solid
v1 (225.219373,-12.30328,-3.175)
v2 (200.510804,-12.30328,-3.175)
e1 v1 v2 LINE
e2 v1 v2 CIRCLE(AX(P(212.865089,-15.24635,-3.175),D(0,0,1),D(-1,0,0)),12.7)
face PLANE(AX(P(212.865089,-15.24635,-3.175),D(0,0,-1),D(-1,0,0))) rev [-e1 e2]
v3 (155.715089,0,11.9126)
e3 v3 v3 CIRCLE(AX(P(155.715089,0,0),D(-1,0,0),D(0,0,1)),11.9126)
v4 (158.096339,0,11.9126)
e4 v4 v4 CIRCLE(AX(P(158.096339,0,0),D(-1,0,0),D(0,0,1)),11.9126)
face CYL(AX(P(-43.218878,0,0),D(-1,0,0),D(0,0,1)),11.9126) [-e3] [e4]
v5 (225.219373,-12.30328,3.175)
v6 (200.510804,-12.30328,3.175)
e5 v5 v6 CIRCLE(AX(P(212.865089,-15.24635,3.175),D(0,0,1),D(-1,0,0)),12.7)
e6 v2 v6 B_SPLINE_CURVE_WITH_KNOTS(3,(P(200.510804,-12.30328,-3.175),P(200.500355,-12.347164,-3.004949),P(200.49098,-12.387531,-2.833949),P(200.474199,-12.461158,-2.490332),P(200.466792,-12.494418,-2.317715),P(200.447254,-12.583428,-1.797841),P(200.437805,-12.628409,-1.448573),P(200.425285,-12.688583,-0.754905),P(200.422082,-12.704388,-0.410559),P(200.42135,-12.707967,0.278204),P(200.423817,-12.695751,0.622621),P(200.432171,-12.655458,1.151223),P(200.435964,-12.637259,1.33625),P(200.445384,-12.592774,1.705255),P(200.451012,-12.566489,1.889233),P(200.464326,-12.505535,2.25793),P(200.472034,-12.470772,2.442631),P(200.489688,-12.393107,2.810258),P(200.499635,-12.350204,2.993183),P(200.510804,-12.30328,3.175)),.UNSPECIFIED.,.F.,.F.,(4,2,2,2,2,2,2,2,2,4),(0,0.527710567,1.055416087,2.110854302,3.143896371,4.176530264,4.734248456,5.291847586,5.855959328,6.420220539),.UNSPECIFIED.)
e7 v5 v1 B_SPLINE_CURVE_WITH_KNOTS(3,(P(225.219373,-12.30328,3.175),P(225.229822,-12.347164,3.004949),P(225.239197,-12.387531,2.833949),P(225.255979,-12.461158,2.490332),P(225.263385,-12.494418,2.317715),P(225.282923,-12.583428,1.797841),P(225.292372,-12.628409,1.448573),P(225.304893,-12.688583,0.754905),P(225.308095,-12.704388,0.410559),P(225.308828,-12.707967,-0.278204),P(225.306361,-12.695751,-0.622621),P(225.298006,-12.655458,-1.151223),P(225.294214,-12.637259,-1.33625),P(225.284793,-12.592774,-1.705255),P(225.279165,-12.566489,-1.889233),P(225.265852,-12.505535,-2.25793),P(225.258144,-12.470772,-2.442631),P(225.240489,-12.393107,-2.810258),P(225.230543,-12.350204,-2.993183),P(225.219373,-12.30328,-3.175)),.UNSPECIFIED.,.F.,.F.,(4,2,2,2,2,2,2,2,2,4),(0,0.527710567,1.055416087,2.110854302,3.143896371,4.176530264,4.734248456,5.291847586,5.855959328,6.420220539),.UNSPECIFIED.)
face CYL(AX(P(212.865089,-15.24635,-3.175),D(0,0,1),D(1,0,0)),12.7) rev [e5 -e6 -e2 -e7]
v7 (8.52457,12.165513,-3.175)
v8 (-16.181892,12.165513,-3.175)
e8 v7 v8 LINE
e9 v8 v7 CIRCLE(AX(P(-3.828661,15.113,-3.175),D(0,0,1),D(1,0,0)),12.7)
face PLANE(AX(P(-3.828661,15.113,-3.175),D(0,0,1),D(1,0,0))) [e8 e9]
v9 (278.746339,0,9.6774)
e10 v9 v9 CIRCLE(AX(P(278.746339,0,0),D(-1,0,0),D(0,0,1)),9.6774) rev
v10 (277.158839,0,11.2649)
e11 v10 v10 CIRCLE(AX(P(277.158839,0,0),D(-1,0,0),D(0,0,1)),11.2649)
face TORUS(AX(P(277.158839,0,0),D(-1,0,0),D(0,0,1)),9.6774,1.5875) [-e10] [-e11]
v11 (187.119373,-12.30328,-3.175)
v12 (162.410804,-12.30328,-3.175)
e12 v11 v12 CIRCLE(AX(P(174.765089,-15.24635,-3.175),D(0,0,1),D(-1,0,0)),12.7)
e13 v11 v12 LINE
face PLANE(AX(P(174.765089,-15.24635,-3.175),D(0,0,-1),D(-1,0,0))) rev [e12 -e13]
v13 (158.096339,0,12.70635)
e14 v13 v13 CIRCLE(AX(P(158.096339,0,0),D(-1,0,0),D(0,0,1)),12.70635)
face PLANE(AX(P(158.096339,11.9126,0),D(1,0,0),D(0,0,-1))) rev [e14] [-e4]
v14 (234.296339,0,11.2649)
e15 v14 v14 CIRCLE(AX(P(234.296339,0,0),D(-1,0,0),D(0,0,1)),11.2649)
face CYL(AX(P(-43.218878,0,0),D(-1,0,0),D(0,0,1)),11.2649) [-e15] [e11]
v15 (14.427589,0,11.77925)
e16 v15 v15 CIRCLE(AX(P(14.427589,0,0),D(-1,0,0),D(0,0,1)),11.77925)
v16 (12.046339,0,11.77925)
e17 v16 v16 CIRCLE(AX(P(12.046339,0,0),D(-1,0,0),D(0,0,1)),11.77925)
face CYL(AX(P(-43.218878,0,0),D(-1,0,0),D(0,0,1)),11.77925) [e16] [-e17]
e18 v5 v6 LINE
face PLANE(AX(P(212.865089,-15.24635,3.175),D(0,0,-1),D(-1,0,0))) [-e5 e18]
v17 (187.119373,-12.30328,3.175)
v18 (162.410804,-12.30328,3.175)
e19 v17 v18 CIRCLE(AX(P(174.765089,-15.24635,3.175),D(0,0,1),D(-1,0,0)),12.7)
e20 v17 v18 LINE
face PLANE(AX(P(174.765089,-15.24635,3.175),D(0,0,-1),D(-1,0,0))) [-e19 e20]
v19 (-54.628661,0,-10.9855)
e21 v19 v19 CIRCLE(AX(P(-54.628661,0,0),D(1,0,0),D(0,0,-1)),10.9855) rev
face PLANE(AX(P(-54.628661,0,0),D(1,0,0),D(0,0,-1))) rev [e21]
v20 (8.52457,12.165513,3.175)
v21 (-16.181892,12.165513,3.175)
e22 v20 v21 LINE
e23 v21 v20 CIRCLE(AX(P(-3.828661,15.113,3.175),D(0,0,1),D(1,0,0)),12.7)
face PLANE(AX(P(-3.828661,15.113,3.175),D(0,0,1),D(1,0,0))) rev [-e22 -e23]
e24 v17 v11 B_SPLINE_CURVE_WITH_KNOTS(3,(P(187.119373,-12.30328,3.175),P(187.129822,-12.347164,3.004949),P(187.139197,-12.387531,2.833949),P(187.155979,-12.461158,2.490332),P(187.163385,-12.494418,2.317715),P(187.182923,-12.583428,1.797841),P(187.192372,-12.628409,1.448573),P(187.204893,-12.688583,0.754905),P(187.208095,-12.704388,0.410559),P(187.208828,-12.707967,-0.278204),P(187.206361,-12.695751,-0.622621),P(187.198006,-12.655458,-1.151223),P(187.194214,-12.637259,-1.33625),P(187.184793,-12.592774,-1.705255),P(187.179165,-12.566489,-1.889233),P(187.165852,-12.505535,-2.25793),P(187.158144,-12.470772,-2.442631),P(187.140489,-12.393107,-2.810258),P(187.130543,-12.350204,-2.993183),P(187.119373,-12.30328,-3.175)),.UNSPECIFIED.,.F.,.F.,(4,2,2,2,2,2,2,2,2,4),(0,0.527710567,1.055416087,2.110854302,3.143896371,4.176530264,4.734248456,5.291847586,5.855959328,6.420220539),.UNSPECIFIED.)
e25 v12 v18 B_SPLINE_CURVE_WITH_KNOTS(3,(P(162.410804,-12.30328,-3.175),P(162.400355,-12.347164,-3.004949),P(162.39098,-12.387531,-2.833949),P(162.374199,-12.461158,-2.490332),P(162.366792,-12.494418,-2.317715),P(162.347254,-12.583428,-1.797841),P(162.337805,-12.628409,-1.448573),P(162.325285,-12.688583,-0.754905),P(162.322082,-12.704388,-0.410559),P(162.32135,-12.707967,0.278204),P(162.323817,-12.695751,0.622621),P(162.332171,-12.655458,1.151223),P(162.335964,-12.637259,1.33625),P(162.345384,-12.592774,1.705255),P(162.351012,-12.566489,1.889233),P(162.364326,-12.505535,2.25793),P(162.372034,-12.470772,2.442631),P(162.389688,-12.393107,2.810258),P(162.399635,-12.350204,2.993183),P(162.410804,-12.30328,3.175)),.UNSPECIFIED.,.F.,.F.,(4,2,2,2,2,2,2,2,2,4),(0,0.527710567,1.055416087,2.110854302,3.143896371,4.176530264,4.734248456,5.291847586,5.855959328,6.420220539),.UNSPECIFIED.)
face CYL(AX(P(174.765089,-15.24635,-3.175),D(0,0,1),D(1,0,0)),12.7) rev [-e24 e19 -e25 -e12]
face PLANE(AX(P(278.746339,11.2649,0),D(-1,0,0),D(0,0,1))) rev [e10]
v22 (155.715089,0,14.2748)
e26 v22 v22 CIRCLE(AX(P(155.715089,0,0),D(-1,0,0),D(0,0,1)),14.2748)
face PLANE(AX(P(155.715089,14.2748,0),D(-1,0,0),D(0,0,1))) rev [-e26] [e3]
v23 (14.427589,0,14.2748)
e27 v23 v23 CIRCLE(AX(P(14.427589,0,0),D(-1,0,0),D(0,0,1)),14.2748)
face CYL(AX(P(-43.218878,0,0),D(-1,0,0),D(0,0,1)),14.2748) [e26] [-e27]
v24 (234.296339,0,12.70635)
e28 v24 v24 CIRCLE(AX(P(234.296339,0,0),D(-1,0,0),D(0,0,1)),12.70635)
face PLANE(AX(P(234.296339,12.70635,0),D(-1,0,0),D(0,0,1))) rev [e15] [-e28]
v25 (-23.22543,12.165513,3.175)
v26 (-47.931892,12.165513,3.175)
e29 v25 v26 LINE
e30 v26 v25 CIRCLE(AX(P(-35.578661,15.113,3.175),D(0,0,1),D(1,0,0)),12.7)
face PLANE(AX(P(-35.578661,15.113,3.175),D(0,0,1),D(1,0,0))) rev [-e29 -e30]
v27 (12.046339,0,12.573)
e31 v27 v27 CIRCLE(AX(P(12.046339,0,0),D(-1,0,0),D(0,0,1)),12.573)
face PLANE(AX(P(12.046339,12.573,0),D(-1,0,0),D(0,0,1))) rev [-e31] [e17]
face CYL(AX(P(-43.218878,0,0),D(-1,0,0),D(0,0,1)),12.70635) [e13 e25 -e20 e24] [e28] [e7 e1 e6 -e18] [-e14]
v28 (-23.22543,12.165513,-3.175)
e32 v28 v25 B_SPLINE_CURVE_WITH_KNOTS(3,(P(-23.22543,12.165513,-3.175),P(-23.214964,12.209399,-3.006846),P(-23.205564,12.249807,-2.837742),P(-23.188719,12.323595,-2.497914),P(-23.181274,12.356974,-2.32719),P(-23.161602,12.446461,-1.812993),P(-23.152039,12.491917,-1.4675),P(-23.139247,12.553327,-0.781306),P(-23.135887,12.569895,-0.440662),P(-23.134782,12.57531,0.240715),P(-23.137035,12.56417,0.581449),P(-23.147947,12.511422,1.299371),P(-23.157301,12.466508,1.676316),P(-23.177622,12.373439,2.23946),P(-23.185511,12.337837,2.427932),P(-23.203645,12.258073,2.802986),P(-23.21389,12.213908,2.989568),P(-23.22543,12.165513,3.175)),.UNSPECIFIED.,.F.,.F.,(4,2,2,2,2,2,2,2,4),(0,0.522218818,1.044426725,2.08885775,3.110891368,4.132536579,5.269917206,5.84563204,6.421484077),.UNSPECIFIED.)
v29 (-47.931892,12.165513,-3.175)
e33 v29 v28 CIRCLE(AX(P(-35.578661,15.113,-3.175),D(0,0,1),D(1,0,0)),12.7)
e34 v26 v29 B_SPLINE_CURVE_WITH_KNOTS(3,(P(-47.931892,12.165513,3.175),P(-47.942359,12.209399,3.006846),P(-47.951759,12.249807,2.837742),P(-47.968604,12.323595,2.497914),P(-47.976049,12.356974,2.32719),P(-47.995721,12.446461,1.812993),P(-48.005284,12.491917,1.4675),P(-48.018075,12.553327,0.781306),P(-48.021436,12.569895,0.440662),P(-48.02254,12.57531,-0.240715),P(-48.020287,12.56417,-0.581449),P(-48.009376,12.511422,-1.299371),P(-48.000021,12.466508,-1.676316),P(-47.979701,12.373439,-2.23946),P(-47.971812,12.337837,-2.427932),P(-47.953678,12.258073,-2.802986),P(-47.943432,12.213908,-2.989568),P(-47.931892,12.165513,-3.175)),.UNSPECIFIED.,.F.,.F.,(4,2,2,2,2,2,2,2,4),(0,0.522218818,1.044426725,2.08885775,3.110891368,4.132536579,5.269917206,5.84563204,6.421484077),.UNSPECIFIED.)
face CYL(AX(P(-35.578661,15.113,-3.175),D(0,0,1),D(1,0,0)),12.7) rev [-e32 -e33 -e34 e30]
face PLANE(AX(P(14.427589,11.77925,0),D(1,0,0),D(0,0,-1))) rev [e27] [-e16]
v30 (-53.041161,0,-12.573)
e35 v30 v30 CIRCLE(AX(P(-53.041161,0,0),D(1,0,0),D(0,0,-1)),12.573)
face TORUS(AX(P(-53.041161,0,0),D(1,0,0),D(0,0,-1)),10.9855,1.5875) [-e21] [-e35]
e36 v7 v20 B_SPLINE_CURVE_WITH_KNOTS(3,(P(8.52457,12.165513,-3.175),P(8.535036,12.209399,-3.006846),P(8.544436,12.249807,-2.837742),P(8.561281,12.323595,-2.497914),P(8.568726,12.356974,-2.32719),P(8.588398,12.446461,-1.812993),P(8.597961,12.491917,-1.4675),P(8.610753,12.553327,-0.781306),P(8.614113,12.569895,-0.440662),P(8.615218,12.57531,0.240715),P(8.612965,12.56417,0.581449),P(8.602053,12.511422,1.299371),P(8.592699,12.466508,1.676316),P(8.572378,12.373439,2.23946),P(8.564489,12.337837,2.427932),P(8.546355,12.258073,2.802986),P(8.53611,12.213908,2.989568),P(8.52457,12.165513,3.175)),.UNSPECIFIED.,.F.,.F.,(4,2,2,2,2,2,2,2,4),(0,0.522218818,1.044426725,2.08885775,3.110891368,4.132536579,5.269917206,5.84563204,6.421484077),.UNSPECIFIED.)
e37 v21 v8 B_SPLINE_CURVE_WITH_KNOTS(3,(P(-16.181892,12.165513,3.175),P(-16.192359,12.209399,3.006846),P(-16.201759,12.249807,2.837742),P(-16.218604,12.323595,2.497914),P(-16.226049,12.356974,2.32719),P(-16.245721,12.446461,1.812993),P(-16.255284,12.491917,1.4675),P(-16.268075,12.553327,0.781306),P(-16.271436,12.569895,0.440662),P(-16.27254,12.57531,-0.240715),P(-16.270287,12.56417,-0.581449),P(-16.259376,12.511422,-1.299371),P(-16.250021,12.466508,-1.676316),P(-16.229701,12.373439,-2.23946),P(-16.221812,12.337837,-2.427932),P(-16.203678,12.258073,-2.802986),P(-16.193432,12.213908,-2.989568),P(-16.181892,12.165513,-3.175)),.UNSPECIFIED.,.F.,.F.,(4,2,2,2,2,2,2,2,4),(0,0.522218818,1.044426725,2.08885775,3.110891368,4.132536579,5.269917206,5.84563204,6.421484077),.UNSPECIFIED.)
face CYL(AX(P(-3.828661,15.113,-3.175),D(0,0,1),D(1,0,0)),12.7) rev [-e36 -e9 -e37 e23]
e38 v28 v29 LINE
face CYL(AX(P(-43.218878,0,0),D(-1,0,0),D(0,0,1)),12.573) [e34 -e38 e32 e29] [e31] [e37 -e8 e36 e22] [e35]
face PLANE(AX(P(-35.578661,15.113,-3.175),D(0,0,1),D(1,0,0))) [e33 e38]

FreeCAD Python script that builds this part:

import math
import FreeCAD as App
import Part
import Sketcher
from FreeCAD import Vector
Q = App.Units.Quantity


def edges_at(feature, points):
    """Names of the edges that pass closest to the given points."""
    edges = feature.Shape.Edges
    near = lambda p: min(range(len(edges)), key=lambda i: edges[i].distToShape(Part.Vertex(*p))[0])
    return sorted({f"Edge{near(p) + 1}" for p in points})

doc = App.newDocument("Part")
body = doc.addObject("PartDesign::Body", "Body")

# Sketch on XY plane
sketch1 = doc.addObject("Sketcher::SketchObject", "Sketch")
body.addObject(sketch1)
sketch1.AttachmentSupport = (doc.XY_Plane, [""])
sketch1.MapMode = "FlatFace"
sketch1.addGeometry(Part.LineSegment(Vector(-54.6, 12.6, 0), Vector(-54.6, 0, 0)), False)
sketch1.addGeometry(Part.LineSegment(Vector(-54.6, 0, 0), Vector(278.7, 0, 0)), False)
sketch1.addGeometry(Part.LineSegment(Vector(278.7, 0, 0), Vector(278.7, 11.3, 0)), False)
sketch1.addGeometry(Part.LineSegment(Vector(278.7, 11.3, 0), Vector(234.3, 11.3, 0)), False)
sketch1.addGeometry(Part.LineSegment(Vector(234.3, 11.3, 0), Vector(234.3, 12.7, 0)), False)
sketch1.addGeometry(Part.LineSegment(Vector(234.3, 12.7, 0), Vector(158.1, 12.7, 0)), False)
sketch1.addGeometry(Part.LineSegment(Vector(158.1, 12.7, 0), Vector(158.1, 11.9, 0)), False)
sketch1.addGeometry(Part.LineSegment(Vector(158.1, 11.9, 0), Vector(155.7, 11.9, 0)), False)
sketch1.addGeometry(Part.LineSegment(Vector(155.7, 11.9, 0), Vector(155.7, 14.3, 0)), False)
sketch1.addGeometry(Part.LineSegment(Vector(155.7, 14.3, 0), Vector(14.4, 14.3, 0)), False)
sketch1.addGeometry(Part.LineSegment(Vector(14.4, 14.3, 0), Vector(14.4, 11.8, 0)), False)
sketch1.addGeometry(Part.LineSegment(Vector(14.4, 11.8, 0), Vector(12, 11.8, 0)), False)
sketch1.addGeometry(Part.LineSegment(Vector(12, 11.8, 0), Vector(12, 12.6, 0)), False)
sketch1.addGeometry(Part.LineSegment(Vector(12, 12.6, 0), Vector(-54.6, 12.6, 0)), False)
sketch1.addConstraint(Sketcher.Constraint("Coincident", 0, 2, 1, 1))
sketch1.addConstraint(Sketcher.Constraint("Coincident", 1, 2, 2, 1))
sketch1.addConstraint(Sketcher.Constraint("Coincident", 2, 2, 3, 1))
sketch1.addConstraint(Sketcher.Constraint("Coincident", 3, 2, 4, 1))
sketch1.addConstraint(Sketcher.Constraint("Coincident", 4, 2, 5, 1))
sketch1.addConstraint(Sketcher.Constraint("Coincident", 5, 2, 6, 1))
sketch1.addConstraint(Sketcher.Constraint("Coincident", 6, 2, 7, 1))
sketch1.addConstraint(Sketcher.Constraint("Coincident", 7, 2, 8, 1))
sketch1.addConstraint(Sketcher.Constraint("Coincident", 8, 2, 9, 1))
sketch1.addConstraint(Sketcher.Constraint("Coincident", 9, 2, 10, 1))
sketch1.addConstraint(Sketcher.Constraint("Coincident", 10, 2, 11, 1))
sketch1.addConstraint(Sketcher.Constraint("Coincident", 11, 2, 12, 1))
sketch1.addConstraint(Sketcher.Constraint("Coincident", 12, 2, 13, 1))
sketch1.addConstraint(Sketcher.Constraint("Coincident", 13, 2, 0, 1))
sketch1.addConstraint(Sketcher.Constraint("Vertical", 0))
sketch1.addConstraint(Sketcher.Constraint("Horizontal", 1))
sketch1.addConstraint(Sketcher.Constraint("Vertical", 2))
sketch1.addConstraint(Sketcher.Constraint("Horizontal", 3))
sketch1.addConstraint(Sketcher.Constraint("Vertical", 4))
sketch1.addConstraint(Sketcher.Constraint("Horizontal", 5))
sketch1.addConstraint(Sketcher.Constraint("Vertical", 6))
sketch1.addConstraint(Sketcher.Constraint("Horizontal", 7))
sketch1.addConstraint(Sketcher.Constraint("Vertical", 8))
sketch1.addConstraint(Sketcher.Constraint("Horizontal", 9))
sketch1.addConstraint(Sketcher.Constraint("Vertical", 10))
sketch1.addConstraint(Sketcher.Constraint("Horizontal", 11))
sketch1.addConstraint(Sketcher.Constraint("Vertical", 12))
sketch1.addConstraint(Sketcher.Constraint("Horizontal", 13))
sketch1.addConstraint(Sketcher.Constraint("PointOnObject", 0, 2, -1))
sketch1.addConstraint(Sketcher.Constraint("Equal", 7, 11))
sketch1.addConstraint(Sketcher.Constraint("Equal", 6, 12))
sketch1.addConstraint(Sketcher.Constraint("DistanceX", 5, 2, 5, 1, Q("3 in")))
sketch1.addConstraint(Sketcher.Constraint("DistanceX", 3, 2, 3, 1, Q("1.75 in")))
sketch1.addConstraint(Sketcher.Constraint("DistanceX", 1, 1, 1, 2, Q("13.125 in")))
sketch1.addConstraint(Sketcher.Constraint("DistanceX", 7, 2, 7, 1, Q("0.09375 in")))
sketch1.addConstraint(Sketcher.Constraint("DistanceX", 9, 2, 9, 1, Q("5.5625 in")))
sketch1.addConstraint(Sketcher.Constraint("DistanceY", 0, 2, 0, 1, Q("0.495 in")))
sketch1.addConstraint(Sketcher.Constraint("DistanceY", 6, 2, 6, 1, Q("0.03125 in")))
sketch1.addConstraint(Sketcher.Constraint("DistanceY", 8, 1, 8, 2, Q("0.093 in")))
sketch1.addConstraint(Sketcher.Constraint("DistanceY", 2, 1, 2, 2, Q("0.4435 in")))
sketch1.addConstraint(Sketcher.Constraint("DistanceY", -1, 1, 6, 2, Q("0.469 in")))
sketch1.addConstraint(Sketcher.Constraint("DistanceX", 0, 2, -1, 1, Q("54.628661 mm")))
revolution = doc.addObject("PartDesign::Revolution", "Revolution")
body.addObject(revolution)
revolution.Profile = sketch1
revolution.ReferenceAxis = (sketch1, ["H_Axis"])
revolution.Angle = 360
doc.recompute()

fillet = doc.addObject("PartDesign::Fillet", "Fillet")
body.addObject(fillet)
fillet.Base = (revolution, edges_at(revolution, [(-54.629, 0, -12.573), (278.746, 0, -11.265)]))
fillet.Radius = Q("0.0625 in")

# Sketch on XY plane
sketch2 = doc.addObject("Sketcher::SketchObject", "Sketch001")
body.addObject(sketch2)
sketch2.AttachmentSupport = (doc.XY_Plane, [""])
sketch2.MapMode = "FlatFace"
sketch2.addGeometry(Part.LineSegment(Vector(-23, 13, 0), Vector(-48, 13, 0)), False)
sketch2.addGeometry(Part.ArcOfCircle(Part.Circle(Vector(-36, 15, 0), Vector(0, 0, 1), 13), math.radians(-168), math.radians(-12)), False)
sketch2.addConstraint(Sketcher.Constraint("Coincident", 0, 1, 1, 2))
sketch2.addConstraint(Sketcher.Constraint("Coincident", 1, 1, 0, 2))
sketch2.addConstraint(Sketcher.Constraint("Horizontal", 0))
sketch2.addConstraint(Sketcher.Constraint("Radius", 1, Q("0.5 in")))
sketch2.addConstraint(Sketcher.Constraint("DistanceY", 0, 1, 1, 3, Q("0.1 in")))
sketch2.addConstraint(Sketcher.Constraint("DistanceY", -1, 1, 1, 3, Q("0.595 in")))
sketch2.addConstraint(Sketcher.Constraint("DistanceX", 1, 3, -1, 1, Q("35.578661 mm")))
pocket1 = doc.addObject("PartDesign::Pocket", "Pocket")
body.addObject(pocket1)
pocket1.Profile = sketch2
pocket1.Length = Q("0.25 in")
pocket1.Midplane = True
doc.recompute()

linearpattern = doc.addObject("PartDesign::LinearPattern", "LinearPattern")
body.addObject(linearpattern)
linearpattern.Originals = [pocket1]
linearpattern.Direction = (doc.X_Axis, [""])
linearpattern.Mode = "offset"
linearpattern.Offset = Q("1.25 in")
linearpattern.Occurrences = 2
body.Tip = linearpattern

# Sketch on XY plane
sketch3 = doc.addObject("Sketcher::SketchObject", "Sketch002")
body.addObject(sketch3)
sketch3.AttachmentSupport = (doc.XY_Plane, [""])
sketch3.MapMode = "FlatFace"
sketch3.addGeometry(Part.LineSegment(Vector(162, -13, 0), Vector(187, -13, 0)), False)
sketch3.addGeometry(Part.ArcOfCircle(Part.Circle(Vector(175, -15, 0), Vector(0, 0, 1), 13), math.radians(12), math.radians(168)), False)
sketch3.addGeometry(Part.LineSegment(Vector(200, -13, 0), Vector(225, -13, 0)), False)
sketch3.addGeometry(Part.ArcOfCircle(Part.Circle(Vector(213, -15, 0), Vector(0, 0, 1), 13), math.radians(12), math.radians(168)), False)
sketch3.addConstraint(Sketcher.Constraint("Coincident", 0, 1, 1, 2))
sketch3.addConstraint(Sketcher.Constraint("Coincident", 1, 1, 0, 2))
sketch3.addConstraint(Sketcher.Constraint("Coincident", 2, 1, 3, 2))
sketch3.addConstraint(Sketcher.Constraint("Coincident", 3, 1, 2, 2))
sketch3.addConstraint(Sketcher.Constraint("Horizontal", 0))
sketch3.addConstraint(Sketcher.Constraint("Horizontal", 2))
sketch3.addConstraint(Sketcher.Constraint("Equal", 1, 3))
sketch3.addConstraint(Sketcher.Constraint("Horizontal", 1, 3, 3, 3))
sketch3.addConstraint(Sketcher.Constraint("Horizontal", 1, 1, 2, 1))
sketch3.addConstraint(Sketcher.Constraint("Radius", 1, Q("0.5 in")))
sketch3.addConstraint(Sketcher.Constraint("DistanceX", 1, 3, 3, 3, Q("1.5 in")))
sketch3.addConstraint(Sketcher.Constraint("DistanceY", 1, 3, 0, 1, Q("0.1 in")))
sketch3.addConstraint(Sketcher.Constraint("DistanceX", -1, 1, 1, 3, Q("174.765089 mm")))
sketch3.addConstraint(Sketcher.Constraint("DistanceY", 1, 3, -1, 1, Q("15.24635 mm")))
pocket2 = doc.addObject("PartDesign::Pocket", "Pocket001")
body.addObject(pocket2)
pocket2.Profile = sketch3
pocket2.Length = Q("0.25 in")
pocket2.Midplane = True

doc.recompute()
